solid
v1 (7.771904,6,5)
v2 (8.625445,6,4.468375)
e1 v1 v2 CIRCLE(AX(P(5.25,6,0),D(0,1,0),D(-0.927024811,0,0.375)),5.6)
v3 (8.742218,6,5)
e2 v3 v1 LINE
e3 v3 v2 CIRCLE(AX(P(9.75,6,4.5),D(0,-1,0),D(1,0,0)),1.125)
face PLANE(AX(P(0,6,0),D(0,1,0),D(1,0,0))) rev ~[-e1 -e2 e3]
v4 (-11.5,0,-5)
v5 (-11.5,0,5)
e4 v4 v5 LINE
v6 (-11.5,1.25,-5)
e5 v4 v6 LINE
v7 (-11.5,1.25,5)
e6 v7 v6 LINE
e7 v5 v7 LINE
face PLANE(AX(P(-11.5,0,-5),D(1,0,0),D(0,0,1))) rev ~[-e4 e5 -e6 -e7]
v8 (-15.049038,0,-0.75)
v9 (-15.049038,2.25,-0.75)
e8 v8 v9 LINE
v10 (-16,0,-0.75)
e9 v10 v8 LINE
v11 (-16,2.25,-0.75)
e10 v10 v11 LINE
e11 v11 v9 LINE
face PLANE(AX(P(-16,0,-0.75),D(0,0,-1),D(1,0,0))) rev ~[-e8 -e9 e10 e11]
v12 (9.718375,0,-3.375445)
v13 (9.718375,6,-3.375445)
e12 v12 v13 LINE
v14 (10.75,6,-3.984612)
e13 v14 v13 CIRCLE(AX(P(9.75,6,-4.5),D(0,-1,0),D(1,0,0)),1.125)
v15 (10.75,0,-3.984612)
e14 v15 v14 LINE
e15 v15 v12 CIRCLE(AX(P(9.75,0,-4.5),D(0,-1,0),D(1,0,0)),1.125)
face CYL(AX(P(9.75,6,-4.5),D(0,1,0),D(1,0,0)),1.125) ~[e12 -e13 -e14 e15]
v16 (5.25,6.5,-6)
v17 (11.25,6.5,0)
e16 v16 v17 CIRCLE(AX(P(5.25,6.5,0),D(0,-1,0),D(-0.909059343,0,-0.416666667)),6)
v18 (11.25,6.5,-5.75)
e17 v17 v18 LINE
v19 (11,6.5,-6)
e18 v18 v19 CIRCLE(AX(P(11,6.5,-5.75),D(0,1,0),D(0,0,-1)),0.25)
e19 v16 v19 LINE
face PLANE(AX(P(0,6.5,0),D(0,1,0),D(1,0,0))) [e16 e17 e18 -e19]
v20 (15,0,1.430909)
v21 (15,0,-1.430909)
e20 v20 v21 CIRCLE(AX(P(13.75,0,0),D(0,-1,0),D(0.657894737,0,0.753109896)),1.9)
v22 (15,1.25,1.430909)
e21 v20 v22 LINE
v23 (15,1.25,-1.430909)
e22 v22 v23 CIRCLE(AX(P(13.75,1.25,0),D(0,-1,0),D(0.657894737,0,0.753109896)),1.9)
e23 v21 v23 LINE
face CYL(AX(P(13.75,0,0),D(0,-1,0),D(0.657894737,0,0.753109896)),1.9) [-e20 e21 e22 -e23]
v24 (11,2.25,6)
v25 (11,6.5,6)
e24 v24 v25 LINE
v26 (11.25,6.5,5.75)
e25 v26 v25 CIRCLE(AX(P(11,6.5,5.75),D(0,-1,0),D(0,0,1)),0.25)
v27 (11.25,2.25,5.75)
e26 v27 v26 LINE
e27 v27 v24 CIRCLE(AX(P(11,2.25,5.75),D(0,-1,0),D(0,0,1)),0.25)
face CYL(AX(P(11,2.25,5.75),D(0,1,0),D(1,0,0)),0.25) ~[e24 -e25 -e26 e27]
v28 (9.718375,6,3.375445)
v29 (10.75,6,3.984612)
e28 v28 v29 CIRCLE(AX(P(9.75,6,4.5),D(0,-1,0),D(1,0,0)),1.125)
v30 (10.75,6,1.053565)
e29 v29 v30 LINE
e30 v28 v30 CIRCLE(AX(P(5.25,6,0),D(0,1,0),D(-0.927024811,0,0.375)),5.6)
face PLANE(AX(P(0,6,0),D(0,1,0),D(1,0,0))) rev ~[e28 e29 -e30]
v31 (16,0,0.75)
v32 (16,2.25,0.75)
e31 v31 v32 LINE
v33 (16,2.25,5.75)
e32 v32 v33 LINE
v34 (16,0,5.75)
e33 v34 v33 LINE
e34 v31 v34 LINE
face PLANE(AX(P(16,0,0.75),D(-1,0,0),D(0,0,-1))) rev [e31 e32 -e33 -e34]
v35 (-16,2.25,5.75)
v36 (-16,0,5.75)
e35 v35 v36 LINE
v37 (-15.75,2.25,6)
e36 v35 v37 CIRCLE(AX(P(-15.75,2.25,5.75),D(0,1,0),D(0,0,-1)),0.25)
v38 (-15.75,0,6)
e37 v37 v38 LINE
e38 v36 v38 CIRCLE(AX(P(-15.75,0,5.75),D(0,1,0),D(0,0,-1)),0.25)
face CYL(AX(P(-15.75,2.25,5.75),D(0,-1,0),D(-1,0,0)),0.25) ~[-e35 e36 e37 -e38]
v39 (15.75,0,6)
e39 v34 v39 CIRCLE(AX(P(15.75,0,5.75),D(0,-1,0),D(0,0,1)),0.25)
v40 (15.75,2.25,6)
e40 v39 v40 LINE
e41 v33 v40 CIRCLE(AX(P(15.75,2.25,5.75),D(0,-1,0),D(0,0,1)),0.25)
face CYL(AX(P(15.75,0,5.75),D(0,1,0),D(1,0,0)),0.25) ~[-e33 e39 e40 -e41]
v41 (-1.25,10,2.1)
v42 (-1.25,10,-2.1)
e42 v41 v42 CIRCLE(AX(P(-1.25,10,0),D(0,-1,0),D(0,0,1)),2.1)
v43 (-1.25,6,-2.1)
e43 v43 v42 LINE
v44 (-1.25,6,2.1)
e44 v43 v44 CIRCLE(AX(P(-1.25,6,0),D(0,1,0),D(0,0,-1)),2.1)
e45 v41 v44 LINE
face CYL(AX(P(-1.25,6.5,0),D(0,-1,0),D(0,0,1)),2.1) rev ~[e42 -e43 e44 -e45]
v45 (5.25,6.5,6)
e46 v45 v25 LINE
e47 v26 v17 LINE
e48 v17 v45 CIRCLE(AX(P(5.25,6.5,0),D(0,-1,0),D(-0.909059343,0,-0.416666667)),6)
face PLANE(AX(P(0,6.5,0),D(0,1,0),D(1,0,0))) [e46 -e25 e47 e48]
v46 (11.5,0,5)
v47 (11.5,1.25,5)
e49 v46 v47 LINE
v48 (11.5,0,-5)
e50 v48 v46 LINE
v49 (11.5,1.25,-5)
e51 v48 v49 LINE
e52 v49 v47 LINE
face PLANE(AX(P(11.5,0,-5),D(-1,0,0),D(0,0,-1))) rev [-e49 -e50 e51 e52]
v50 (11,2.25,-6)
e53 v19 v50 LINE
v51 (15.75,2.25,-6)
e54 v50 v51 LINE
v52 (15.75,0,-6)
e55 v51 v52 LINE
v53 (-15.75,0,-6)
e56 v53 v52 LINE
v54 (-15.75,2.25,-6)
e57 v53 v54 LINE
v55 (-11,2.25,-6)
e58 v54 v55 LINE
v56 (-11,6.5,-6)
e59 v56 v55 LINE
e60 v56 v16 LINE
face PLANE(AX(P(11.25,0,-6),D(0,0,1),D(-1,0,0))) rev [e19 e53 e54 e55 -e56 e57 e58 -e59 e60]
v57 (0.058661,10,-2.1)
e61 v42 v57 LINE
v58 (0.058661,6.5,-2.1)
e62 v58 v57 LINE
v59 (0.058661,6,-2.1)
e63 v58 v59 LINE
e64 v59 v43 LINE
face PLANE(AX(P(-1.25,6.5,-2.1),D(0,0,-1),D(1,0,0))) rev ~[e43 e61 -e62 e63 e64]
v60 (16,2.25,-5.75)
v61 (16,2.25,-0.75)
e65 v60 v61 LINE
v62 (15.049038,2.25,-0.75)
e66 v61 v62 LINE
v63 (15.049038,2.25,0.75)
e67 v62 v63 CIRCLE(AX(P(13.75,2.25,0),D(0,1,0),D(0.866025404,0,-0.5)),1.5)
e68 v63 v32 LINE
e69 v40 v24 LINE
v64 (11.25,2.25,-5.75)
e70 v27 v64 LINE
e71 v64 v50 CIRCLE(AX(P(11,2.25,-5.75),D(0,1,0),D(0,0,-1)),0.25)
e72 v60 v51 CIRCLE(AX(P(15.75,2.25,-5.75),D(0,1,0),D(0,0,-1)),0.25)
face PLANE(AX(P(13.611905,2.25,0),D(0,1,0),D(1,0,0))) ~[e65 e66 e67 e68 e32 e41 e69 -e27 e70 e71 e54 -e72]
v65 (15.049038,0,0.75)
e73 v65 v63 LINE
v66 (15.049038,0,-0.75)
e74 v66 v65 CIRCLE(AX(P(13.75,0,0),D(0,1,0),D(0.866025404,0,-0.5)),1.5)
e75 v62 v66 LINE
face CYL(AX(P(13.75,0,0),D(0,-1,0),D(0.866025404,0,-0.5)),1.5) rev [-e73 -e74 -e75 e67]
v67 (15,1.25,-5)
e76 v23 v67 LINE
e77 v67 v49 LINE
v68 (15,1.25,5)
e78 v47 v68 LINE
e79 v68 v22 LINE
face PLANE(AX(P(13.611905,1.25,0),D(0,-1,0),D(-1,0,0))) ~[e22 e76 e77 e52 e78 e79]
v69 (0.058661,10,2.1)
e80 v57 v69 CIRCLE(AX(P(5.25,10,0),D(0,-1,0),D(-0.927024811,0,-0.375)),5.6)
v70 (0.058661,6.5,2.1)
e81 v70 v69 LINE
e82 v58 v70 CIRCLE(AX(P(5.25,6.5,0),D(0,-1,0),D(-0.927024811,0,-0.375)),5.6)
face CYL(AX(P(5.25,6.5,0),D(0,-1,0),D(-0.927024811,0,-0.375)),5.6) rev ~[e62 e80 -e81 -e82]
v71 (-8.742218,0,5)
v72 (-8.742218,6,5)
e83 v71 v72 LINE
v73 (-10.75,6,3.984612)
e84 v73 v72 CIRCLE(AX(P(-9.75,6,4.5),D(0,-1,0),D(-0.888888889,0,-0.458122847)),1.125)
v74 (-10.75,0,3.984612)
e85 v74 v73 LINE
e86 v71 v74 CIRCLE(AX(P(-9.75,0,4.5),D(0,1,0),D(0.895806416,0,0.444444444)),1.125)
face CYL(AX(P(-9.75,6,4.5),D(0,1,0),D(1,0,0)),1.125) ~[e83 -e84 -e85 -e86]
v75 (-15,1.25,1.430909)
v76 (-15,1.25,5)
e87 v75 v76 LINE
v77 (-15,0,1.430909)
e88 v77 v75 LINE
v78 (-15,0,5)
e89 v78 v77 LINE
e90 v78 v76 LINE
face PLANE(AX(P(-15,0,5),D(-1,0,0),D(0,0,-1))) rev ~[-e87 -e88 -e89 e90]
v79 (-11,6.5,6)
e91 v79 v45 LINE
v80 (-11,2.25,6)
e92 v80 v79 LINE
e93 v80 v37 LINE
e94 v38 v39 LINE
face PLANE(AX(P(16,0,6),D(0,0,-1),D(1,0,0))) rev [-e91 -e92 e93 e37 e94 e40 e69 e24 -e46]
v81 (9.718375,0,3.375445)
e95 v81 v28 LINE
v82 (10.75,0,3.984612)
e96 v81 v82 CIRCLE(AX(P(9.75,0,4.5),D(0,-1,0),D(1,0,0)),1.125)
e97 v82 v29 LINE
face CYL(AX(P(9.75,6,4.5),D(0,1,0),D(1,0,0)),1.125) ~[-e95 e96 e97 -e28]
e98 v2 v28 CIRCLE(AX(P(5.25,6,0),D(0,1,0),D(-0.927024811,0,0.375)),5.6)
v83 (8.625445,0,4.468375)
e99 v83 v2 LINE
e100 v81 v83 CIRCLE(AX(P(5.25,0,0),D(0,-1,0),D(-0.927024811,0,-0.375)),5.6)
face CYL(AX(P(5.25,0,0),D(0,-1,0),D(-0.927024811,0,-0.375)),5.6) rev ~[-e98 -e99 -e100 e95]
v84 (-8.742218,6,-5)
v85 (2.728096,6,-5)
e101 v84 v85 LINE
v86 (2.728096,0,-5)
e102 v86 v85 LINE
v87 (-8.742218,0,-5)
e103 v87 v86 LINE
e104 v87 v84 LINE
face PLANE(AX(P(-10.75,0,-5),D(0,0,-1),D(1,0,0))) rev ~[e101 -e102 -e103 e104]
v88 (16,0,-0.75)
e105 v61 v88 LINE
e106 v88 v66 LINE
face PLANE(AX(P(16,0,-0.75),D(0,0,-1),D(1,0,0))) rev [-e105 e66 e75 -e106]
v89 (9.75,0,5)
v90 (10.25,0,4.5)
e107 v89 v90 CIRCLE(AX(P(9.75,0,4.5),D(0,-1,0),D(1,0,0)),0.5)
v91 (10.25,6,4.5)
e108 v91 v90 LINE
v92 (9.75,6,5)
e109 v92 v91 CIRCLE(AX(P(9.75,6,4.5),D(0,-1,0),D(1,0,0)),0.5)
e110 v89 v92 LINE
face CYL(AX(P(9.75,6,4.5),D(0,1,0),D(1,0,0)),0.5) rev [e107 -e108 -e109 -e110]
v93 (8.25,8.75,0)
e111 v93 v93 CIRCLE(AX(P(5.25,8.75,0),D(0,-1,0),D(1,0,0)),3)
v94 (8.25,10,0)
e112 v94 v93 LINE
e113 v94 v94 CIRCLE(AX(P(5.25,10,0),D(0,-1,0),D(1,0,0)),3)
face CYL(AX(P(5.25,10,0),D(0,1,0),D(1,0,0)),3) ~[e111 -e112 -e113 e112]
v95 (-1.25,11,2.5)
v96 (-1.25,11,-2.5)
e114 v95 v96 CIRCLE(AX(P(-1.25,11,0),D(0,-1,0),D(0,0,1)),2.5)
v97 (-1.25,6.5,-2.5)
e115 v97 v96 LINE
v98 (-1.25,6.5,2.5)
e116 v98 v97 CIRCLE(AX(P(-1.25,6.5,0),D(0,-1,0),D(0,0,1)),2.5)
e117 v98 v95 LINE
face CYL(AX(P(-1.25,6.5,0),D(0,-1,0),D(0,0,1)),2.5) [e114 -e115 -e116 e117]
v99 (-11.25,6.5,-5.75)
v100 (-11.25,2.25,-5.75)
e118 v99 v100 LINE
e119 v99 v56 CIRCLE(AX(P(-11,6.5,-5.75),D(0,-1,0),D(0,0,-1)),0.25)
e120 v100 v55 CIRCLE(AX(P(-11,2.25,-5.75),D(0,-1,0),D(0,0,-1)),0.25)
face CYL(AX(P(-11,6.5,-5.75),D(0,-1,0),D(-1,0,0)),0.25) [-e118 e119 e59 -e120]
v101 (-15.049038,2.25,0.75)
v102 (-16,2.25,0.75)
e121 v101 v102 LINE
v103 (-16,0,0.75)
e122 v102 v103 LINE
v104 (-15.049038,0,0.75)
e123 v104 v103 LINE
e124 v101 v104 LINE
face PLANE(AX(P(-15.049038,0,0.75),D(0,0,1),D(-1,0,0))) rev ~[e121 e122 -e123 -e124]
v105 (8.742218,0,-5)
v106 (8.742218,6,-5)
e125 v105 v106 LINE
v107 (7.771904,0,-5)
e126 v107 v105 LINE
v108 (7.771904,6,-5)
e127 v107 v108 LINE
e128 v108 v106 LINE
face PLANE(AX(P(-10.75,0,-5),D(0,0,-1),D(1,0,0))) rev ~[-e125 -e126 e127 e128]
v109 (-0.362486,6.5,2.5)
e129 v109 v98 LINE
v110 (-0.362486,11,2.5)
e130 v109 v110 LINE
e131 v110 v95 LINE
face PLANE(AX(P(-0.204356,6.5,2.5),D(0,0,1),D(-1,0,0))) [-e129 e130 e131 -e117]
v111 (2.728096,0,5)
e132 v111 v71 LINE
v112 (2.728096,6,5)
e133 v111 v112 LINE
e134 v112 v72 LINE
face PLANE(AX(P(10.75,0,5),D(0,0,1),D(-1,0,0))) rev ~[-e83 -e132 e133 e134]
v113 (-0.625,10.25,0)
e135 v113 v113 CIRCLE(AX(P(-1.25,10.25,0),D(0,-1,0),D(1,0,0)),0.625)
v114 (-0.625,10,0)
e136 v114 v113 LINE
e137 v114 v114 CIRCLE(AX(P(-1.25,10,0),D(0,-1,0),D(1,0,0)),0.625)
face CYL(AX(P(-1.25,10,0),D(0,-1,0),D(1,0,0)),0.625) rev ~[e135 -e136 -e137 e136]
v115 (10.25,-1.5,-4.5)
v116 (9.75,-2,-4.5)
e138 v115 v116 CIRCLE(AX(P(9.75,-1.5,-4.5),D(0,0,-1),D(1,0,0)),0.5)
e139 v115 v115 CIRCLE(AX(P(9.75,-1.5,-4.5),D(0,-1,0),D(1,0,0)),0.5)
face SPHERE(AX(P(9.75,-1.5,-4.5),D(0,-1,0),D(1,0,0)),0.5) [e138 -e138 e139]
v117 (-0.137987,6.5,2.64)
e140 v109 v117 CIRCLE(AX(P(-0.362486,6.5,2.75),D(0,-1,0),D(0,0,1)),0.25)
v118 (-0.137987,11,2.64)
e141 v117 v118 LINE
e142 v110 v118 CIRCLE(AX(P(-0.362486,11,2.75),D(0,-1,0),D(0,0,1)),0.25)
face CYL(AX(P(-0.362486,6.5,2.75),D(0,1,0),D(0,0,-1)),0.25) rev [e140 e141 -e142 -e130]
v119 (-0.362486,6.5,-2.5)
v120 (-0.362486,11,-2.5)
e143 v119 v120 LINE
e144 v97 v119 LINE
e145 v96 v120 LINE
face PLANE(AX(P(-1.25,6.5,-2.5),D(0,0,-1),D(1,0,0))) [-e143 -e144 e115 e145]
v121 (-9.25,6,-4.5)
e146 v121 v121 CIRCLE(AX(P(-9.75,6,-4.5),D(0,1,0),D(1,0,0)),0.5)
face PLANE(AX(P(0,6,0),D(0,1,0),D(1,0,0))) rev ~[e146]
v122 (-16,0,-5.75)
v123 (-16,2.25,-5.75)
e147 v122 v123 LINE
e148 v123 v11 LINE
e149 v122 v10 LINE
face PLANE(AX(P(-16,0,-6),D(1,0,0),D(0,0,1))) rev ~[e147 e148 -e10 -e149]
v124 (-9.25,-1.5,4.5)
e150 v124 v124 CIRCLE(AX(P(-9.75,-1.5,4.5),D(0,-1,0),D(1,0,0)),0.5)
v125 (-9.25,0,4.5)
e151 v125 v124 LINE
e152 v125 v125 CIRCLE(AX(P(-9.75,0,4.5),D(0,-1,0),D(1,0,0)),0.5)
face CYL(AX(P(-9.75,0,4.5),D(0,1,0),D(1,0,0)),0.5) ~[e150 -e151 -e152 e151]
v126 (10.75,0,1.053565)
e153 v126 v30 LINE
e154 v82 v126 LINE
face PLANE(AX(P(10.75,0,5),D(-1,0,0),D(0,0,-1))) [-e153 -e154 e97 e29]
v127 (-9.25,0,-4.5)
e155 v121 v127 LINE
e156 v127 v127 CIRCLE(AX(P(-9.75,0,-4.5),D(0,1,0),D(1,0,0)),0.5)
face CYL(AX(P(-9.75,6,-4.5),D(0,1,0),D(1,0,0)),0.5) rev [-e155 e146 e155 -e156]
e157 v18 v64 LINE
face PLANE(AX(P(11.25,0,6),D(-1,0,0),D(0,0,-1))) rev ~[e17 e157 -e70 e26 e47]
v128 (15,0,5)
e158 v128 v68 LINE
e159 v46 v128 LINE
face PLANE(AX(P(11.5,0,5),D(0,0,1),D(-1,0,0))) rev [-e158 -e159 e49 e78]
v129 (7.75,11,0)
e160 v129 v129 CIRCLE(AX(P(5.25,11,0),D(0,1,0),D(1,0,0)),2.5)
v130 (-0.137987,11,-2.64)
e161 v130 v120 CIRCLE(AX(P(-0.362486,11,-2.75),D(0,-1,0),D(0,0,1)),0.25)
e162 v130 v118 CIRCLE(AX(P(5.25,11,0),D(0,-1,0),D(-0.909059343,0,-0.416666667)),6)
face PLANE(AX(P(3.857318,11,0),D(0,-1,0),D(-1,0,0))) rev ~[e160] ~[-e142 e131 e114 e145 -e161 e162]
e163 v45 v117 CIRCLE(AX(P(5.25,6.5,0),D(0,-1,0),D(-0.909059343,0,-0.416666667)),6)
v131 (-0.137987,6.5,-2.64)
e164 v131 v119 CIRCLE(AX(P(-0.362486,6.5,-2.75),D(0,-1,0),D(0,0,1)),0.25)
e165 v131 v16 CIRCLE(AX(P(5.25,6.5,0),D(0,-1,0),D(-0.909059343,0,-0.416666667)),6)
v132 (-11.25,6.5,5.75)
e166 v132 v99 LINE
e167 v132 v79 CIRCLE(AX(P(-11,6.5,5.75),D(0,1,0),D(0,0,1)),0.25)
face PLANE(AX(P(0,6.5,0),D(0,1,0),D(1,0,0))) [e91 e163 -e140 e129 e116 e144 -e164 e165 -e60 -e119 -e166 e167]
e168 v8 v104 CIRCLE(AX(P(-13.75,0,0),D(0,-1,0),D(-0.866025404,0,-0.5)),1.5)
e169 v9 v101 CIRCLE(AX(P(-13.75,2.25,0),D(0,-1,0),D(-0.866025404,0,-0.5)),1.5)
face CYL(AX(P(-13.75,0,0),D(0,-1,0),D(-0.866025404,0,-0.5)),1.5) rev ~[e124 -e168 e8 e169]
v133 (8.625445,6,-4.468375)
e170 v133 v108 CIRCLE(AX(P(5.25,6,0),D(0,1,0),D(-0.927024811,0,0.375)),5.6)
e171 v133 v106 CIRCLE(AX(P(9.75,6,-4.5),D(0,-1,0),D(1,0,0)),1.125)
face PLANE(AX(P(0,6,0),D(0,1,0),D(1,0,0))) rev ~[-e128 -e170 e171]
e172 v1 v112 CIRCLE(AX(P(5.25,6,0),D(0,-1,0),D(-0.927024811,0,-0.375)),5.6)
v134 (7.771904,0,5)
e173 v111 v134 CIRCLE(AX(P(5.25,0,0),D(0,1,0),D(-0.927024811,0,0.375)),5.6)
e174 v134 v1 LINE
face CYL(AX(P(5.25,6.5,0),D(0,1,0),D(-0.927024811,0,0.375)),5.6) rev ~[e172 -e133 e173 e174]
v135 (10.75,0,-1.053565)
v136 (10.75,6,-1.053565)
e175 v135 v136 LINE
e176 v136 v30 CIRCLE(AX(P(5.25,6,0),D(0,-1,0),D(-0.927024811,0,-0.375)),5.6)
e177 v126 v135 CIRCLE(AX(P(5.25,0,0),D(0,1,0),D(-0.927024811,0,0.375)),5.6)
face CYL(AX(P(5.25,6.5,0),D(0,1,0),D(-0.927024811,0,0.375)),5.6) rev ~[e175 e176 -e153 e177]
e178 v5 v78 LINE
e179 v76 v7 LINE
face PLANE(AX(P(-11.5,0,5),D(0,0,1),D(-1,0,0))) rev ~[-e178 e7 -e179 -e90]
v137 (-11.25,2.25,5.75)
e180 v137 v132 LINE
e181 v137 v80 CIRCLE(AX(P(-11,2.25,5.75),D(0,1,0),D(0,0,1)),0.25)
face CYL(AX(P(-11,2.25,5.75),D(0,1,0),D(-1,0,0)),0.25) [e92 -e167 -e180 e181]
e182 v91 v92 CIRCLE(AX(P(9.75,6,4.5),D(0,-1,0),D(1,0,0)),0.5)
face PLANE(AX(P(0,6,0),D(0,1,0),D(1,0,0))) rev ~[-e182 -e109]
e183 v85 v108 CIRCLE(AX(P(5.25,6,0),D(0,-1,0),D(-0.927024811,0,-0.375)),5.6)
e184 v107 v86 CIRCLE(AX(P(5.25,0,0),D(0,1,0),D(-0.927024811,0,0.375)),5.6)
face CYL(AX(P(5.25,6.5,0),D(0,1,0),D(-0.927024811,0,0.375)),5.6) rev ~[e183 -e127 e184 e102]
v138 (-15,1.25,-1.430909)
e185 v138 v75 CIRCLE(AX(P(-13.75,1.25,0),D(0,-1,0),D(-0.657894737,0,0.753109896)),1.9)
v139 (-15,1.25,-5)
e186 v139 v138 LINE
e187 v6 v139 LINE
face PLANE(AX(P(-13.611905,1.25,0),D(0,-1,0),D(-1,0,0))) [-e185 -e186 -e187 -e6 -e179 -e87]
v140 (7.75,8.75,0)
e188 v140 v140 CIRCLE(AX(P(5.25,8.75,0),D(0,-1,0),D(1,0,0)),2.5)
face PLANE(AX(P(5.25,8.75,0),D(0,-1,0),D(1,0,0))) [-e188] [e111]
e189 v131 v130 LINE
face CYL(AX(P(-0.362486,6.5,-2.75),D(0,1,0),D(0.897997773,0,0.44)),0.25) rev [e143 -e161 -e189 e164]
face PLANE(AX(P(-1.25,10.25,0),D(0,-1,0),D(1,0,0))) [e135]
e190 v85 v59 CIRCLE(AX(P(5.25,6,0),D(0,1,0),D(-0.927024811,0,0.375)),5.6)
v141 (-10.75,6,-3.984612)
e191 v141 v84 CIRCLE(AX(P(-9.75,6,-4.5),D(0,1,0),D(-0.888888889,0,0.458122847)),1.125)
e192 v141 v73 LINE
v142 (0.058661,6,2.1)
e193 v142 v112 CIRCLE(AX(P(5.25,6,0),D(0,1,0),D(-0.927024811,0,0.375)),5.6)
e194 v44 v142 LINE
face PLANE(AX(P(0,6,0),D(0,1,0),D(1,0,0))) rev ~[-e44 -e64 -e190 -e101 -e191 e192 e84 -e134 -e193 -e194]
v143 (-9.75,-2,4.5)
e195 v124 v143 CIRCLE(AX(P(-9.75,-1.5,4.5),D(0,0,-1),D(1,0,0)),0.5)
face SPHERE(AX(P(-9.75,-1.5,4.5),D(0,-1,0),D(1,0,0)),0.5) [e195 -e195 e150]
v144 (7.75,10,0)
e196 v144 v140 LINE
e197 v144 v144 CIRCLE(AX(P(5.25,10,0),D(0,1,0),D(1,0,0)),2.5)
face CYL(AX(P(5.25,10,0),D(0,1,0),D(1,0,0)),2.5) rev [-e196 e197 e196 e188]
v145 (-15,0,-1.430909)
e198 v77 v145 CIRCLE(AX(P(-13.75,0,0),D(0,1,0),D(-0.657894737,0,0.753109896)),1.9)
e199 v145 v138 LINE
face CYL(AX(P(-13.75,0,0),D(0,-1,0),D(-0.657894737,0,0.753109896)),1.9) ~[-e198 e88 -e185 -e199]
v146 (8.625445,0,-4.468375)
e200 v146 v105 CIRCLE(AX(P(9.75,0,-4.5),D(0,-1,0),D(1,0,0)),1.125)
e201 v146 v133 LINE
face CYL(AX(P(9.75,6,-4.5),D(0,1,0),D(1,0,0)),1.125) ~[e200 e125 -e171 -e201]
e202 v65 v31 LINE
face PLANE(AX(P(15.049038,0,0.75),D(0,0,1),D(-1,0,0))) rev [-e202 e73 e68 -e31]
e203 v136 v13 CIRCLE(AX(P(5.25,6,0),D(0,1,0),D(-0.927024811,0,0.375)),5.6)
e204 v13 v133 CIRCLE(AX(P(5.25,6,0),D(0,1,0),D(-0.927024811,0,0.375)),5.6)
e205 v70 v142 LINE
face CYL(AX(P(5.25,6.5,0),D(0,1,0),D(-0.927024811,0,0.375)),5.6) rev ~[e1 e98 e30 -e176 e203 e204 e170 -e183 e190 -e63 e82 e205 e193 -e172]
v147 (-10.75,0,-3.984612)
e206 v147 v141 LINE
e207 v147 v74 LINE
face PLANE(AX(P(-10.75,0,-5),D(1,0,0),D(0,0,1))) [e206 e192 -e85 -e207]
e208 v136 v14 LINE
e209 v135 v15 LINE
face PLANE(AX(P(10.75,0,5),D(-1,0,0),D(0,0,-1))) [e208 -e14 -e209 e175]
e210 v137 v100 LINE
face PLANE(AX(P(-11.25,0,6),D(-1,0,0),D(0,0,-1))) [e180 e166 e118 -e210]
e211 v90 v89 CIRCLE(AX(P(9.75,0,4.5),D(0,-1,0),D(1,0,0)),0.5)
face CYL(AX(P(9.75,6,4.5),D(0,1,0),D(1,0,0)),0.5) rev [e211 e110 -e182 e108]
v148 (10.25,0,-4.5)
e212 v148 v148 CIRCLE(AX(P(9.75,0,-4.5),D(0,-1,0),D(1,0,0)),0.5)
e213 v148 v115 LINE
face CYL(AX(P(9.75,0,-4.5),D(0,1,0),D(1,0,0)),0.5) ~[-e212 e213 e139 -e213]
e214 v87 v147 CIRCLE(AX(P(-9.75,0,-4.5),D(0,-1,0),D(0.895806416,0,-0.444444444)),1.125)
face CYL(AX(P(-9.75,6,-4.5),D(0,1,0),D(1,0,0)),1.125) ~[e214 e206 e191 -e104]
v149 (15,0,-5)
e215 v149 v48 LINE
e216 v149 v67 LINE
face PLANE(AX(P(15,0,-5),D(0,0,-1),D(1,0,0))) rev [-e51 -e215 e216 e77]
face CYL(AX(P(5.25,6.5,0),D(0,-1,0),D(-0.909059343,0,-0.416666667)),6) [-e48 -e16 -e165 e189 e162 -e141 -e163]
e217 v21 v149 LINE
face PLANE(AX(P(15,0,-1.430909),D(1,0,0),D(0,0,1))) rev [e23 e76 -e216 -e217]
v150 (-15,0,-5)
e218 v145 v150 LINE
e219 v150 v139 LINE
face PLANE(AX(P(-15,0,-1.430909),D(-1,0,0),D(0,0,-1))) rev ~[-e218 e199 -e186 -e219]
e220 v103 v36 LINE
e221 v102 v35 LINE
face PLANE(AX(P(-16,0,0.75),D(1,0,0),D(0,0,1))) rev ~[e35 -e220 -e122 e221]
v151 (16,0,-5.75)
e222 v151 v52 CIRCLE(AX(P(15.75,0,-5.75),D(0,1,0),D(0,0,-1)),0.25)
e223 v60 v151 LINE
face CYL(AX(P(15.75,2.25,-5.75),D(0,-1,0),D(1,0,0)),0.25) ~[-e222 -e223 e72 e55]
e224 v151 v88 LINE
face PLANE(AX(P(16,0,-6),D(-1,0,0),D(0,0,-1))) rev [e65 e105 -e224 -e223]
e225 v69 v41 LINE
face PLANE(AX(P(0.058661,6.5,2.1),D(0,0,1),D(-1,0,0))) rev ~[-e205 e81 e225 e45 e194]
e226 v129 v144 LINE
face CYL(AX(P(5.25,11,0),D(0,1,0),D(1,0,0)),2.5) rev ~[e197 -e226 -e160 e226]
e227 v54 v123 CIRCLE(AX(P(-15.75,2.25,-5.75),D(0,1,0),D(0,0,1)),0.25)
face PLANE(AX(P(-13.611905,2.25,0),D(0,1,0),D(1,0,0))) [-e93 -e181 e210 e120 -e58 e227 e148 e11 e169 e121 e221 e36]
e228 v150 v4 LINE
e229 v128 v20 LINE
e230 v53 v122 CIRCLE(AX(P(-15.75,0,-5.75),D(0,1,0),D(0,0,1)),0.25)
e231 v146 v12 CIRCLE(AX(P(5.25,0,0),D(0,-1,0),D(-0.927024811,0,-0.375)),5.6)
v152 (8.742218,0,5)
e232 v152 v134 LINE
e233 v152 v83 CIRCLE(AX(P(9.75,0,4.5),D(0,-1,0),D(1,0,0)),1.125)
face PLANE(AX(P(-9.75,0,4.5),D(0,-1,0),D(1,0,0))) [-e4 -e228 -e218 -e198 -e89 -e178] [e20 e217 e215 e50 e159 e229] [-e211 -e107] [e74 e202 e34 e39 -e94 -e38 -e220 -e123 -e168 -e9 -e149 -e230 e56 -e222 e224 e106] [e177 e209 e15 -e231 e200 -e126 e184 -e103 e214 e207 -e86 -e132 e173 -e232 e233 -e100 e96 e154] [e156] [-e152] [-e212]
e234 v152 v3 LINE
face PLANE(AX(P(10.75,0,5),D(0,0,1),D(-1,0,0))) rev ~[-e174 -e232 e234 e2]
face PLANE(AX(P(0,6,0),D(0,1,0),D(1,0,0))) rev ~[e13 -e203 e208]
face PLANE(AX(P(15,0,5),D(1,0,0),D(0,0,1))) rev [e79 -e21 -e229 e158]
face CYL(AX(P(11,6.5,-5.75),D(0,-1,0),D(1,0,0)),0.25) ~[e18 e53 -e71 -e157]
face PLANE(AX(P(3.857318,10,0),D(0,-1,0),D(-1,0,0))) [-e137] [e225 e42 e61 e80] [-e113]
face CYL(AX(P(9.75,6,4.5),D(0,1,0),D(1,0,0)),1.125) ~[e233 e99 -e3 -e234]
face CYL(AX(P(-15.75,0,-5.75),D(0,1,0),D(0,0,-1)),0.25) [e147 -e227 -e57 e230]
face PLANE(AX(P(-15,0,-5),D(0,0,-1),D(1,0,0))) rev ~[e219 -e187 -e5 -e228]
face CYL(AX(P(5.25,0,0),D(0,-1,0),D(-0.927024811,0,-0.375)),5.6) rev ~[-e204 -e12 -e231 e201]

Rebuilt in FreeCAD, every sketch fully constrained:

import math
import FreeCAD as App
import Part
import Sketcher
from FreeCAD import Vector
Q = App.Units.Quantity


def edges_at(feature, points):
    """Names of the edges that pass closest to the given points."""
    edges = feature.Shape.Edges
    near = lambda p: min(range(len(edges)), key=lambda i: edges[i].distToShape(Part.Vertex(*p))[0])
    return sorted({f"Edge{near(p) + 1}" for p in points})


def add_polygon(sketch, points):
    """Adds a closed chain of lines whose ends are joined by coincident constraints."""
    first, n = sketch.GeometryCount, len(points)
    for a, b in zip(points, points[1:] + points[:1]):
        sketch.addGeometry(Part.LineSegment(App.Vector(*a, 0), App.Vector(*b, 0)), False)
    for i in range(n):
        sketch.addConstraint(Sketcher.Constraint("Coincident", first + i, 2, first + (i + 1) % n, 1))

doc = App.newDocument("Part")
body = doc.addObject("PartDesign::Body", "Body")

# Sketch on XZ plane
sketch1 = body.newObject("Sketcher::SketchObject", "Sketch")
sketch1.AttachmentSupport = (doc.getObject("XZ_Plane"), [""])
sketch1.MapMode = "FlatFace"
add_polygon(sketch1, [(-11, -6), (-11, 6), (11, 6), (11, -6)])  # lines 0-3
add_polygon(sketch1, [(-11, -5), (11, -5), (11, 5), (-11, 5)])  # lines 4-7
sketch1.addConstraint(Sketcher.Constraint("Vertical", 0))
sketch1.addConstraint(Sketcher.Constraint("Horizontal", 1))
sketch1.addConstraint(Sketcher.Constraint("Vertical", 2))
sketch1.addConstraint(Sketcher.Constraint("Horizontal", 3))
sketch1.addConstraint(Sketcher.Constraint("Horizontal", 4))
sketch1.addConstraint(Sketcher.Constraint("Vertical", 5))
sketch1.addConstraint(Sketcher.Constraint("Horizontal", 6))
sketch1.addConstraint(Sketcher.Constraint("Vertical", 7))
sketch1.addConstraint(Sketcher.Constraint("Symmetric", 0, 2, 2, 2, -1, 1))
sketch1.addConstraint(Sketcher.Constraint("Symmetric", 4, 2, 6, 2, -1, 1))
sketch1.addConstraint(Sketcher.Constraint("DistanceY", 0, 1, 0, 2, Q("12 mm")))
sketch1.addConstraint(Sketcher.Constraint("DistanceY", 5, 1, 5, 2, Q("10 mm")))
sketch1.addConstraint(Sketcher.Constraint("DistanceX", 1, 1, 1, 2, Q("22.5 mm")))
sketch1.addConstraint(Sketcher.Constraint("DistanceX", 4, 1, 4, 2, Q("21.5 mm")))
pad1 = body.newObject("PartDesign::Pad", "Pad")
pad1.Profile = sketch1
pad1.Length = 6.5
pad1.Reversed = True

# Sketch on XZ plane
sketch2 = body.newObject("Sketcher::SketchObject", "Sketch001")
sketch2.AttachmentSupport = (doc.getObject("XZ_Plane"), [""])
sketch2.MapMode = "FlatFace"
sketch2.AttachmentOffset = App.Placement(Vector(0, 0, -6.5), App.Rotation())
add_polygon(sketch2, [(-11, -6), (-11, 6), (11, 6), (11, -6)])  # lines 0-3
sketch2.addConstraint(Sketcher.Constraint("Vertical", 0))
sketch2.addConstraint(Sketcher.Constraint("Horizontal", 1))
sketch2.addConstraint(Sketcher.Constraint("Vertical", 2))
sketch2.addConstraint(Sketcher.Constraint("Horizontal", 3))
sketch2.addConstraint(Sketcher.Constraint("Symmetric", 0, 2, 2, 2, -1, 1))
sketch2.addConstraint(Sketcher.Constraint("DistanceY", 0, 1, 0, 2, Q("12 mm")))
sketch2.addConstraint(Sketcher.Constraint("DistanceX", 1, 1, 1, 2, Q("22.5 mm")))
pad2 = body.newObject("PartDesign::Pad", "Pad001")
pad2.Profile = sketch2
pad2.Length = 0.5

# Sketch on XZ plane
sketch3 = body.newObject("Sketcher::SketchObject", "Sketch002")
sketch3.AttachmentSupport = (doc.getObject("XZ_Plane"), [""])
sketch3.MapMode = "FlatFace"
sketch3.AttachmentOffset = App.Placement(Vector(0, 0, -6.5), App.Rotation())
sketch3.addGeometry(Part.LineSegment(Vector(-0.2, -2.5, 0), Vector(-1.2, -2.5, 0)), False)
sketch3.addGeometry(Part.ArcOfCircle(Part.Circle(Vector(-1.2, 0, 0), Vector(0, 0, 1), 2.5), math.radians(90), math.radians(270)), False)
sketch3.addGeometry(Part.LineSegment(Vector(-1.2, 2.5, 0), Vector(-0.2, 2.5, 0)), False)
sketch3.addGeometry(Part.ArcOfCircle(Part.Circle(Vector(5.2, 0, 0), Vector(0, 0, 1), 6), math.radians(-155), math.radians(155)), False)
sketch3.addGeometry(Part.LineSegment(Vector(-1.2, -2.1, 0), Vector(0.1, -2.1, 0)), False)
sketch3.addGeometry(Part.ArcOfCircle(Part.Circle(Vector(5.2, 0, 0), Vector(0, 0, 1), 5.6), math.radians(-158), math.radians(158)), False)
sketch3.addGeometry(Part.LineSegment(Vector(0.1, 2.1, 0), Vector(-1.2, 2.1, 0)), False)
sketch3.addGeometry(Part.ArcOfCircle(Part.Circle(Vector(-1.2, 0, 0), Vector(0, 0, 1), 2.1), math.radians(90), math.radians(270)), False)
sketch3.addConstraint(Sketcher.Constraint("Tangent", 0, 2, 1, 2))
sketch3.addConstraint(Sketcher.Constraint("Tangent", 1, 1, 2, 1))
sketch3.addConstraint(Sketcher.Constraint("Coincident", 2, 2, 3, 2))
sketch3.addConstraint(Sketcher.Constraint("Coincident", 3, 1, 0, 1))
sketch3.addConstraint(Sketcher.Constraint("Coincident", 4, 2, 5, 1))
sketch3.addConstraint(Sketcher.Constraint("Coincident", 5, 2, 6, 1))
sketch3.addConstraint(Sketcher.Constraint("Tangent", 6, 2, 7, 1))
sketch3.addConstraint(Sketcher.Constraint("Tangent", 7, 2, 4, 1))
sketch3.addConstraint(Sketcher.Constraint("Horizontal", 0))
sketch3.addConstraint(Sketcher.Constraint("Horizontal", 2))
sketch3.addConstraint(Sketcher.Constraint("Horizontal", 4))
sketch3.addConstraint(Sketcher.Constraint("Horizontal", 6))
sketch3.addConstraint(Sketcher.Constraint("Coincident", 5, 3, 3, 3))
sketch3.addConstraint(Sketcher.Constraint("Coincident", 7, 3, 1, 3))
sketch3.addConstraint(Sketcher.Constraint("Symmetric", 2, 2, 3, 1, -1))
sketch3.addConstraint(Sketcher.Constraint("Radius", 3, Q("6 mm")))
sketch3.addConstraint(Sketcher.Constraint("Radius", 1, Q("2.5 mm")))
sketch3.addConstraint(Sketcher.Constraint("Radius", 5, Q("5.6 mm")))
sketch3.addConstraint(Sketcher.Constraint("Radius", 7, Q("2.1 mm")))
sketch3.addConstraint(Sketcher.Constraint("DistanceX", 1, 3, 3, 3, Q("6.5 mm")))
sketch3.addConstraint(Sketcher.Constraint("DistanceX", 1, 3, -1, 1, Q("1.25 mm")))
pad3 = body.newObject("PartDesign::Pad", "Pad002")
pad3.Profile = sketch3
pad3.Length = 4.5
pad3.Reversed = True

# Sketch on XZ plane
sketch4 = body.newObject("Sketcher::SketchObject", "Sketch003")
sketch4.AttachmentSupport = (doc.getObject("XZ_Plane"), [""])
sketch4.MapMode = "FlatFace"
sketch4.AttachmentOffset = App.Placement(Vector(0, 0, -11), App.Rotation())
sketch4.addGeometry(Part.ArcOfCircle(Part.Circle(Vector(-1.2, 0, 0), Vector(0, 0, 1), 2.1), math.radians(90), math.radians(270)), False)
sketch4.addGeometry(Part.LineSegment(Vector(-1.2, 2.1, 0), Vector(0.1, 2.1, 0)), False)
sketch4.addGeometry(Part.ArcOfCircle(Part.Circle(Vector(5.2, 0, 0), Vector(0, 0, 1), 5.6), math.radians(-158), math.radians(158)), False)
sketch4.addGeometry(Part.LineSegment(Vector(0.1, -2.1, 0), Vector(-1.2, -2.1, 0)), False)
sketch4.addGeometry(Part.Circle(Vector(5.2, 0, 0), Vector(0, 0, 1), 2.5), False)
sketch4.addConstraint(Sketcher.Constraint("Tangent", 0, 1, 1, 1))
sketch4.addConstraint(Sketcher.Constraint("Coincident", 1, 2, 2, 2))
sketch4.addConstraint(Sketcher.Constraint("Coincident", 2, 1, 3, 1))
sketch4.addConstraint(Sketcher.Constraint("Tangent", 3, 2, 0, 2))
sketch4.addConstraint(Sketcher.Constraint("Horizontal", 1))
sketch4.addConstraint(Sketcher.Constraint("Horizontal", 3))
sketch4.addConstraint(Sketcher.Constraint("Coincident", 4, 3, 2, 3))
sketch4.addConstraint(Sketcher.Constraint("Symmetric", 1, 2, 2, 1, -1))
sketch4.addConstraint(Sketcher.Constraint("Diameter", 4, Q("5 mm")))
sketch4.addConstraint(Sketcher.Constraint("Radius", 0, Q("2.1 mm")))
sketch4.addConstraint(Sketcher.Constraint("Radius", 2, Q("5.6 mm")))
sketch4.addConstraint(Sketcher.Constraint("DistanceX", 0, 3, 2, 3, Q("6.5 mm")))
sketch4.addConstraint(Sketcher.Constraint("DistanceX", 0, 3, -1, 1, Q("1.25 mm")))
pad4 = body.newObject("PartDesign::Pad", "Pad003")
pad4.Profile = sketch4
pad4.Length = 1

# Sketch on XZ plane
sketch5 = body.newObject("Sketcher::SketchObject", "Sketch004")
sketch5.AttachmentSupport = (doc.getObject("XZ_Plane"), [""])
sketch5.MapMode = "FlatFace"
sketch5.AttachmentOffset = App.Placement(Vector(0, 0, -6.5), App.Rotation())
sketch5.addGeometry(Part.LineSegment(Vector(-1.2, 2.1, 0), Vector(0.1, 2.1, 0)), False)
sketch5.addGeometry(Part.ArcOfCircle(Part.Circle(Vector(5.2, 0, 0), Vector(0, 0, 1), 5.6), math.radians(-158), math.radians(158)), False)
sketch5.addGeometry(Part.LineSegment(Vector(0.1, -2.1, 0), Vector(-1.2, -2.1, 0)), False)
sketch5.addGeometry(Part.ArcOfCircle(Part.Circle(Vector(-1.2, 0, 0), Vector(0, 0, 1), 2.1), math.radians(90), math.radians(270)), False)
sketch5.addConstraint(Sketcher.Constraint("Coincident", 0, 2, 1, 2))
sketch5.addConstraint(Sketcher.Constraint("Coincident", 1, 1, 2, 1))
sketch5.addConstraint(Sketcher.Constraint("Tangent", 2, 2, 3, 2))
sketch5.addConstraint(Sketcher.Constraint("Tangent", 3, 1, 0, 1))
sketch5.addConstraint(Sketcher.Constraint("Horizontal", 0))
sketch5.addConstraint(Sketcher.Constraint("Horizontal", 2))
sketch5.addConstraint(Sketcher.Constraint("Symmetric", 0, 2, 1, 1, -1))
sketch5.addConstraint(Sketcher.Constraint("Radius", 1, Q("5.6 mm")))
sketch5.addConstraint(Sketcher.Constraint("Radius", 3, Q("2.1 mm")))
sketch5.addConstraint(Sketcher.Constraint("DistanceX", 3, 3, 1, 3, Q("6.5 mm")))
sketch5.addConstraint(Sketcher.Constraint("DistanceX", -1, 1, 1, 3, Q("5.25 mm")))
pocket1 = body.newObject("PartDesign::Pocket", "Pocket")
pocket1.Profile = sketch5
pocket1.Type = "ThroughAll"
pocket1.Reversed = True

# Sketch on XZ plane
sketch6 = body.newObject("Sketcher::SketchObject", "Sketch005")
sketch6.AttachmentSupport = (doc.getObject("XZ_Plane"), [""])
sketch6.MapMode = "FlatFace"
sketch6.AttachmentOffset = App.Placement(Vector(0, 0, -10), App.Rotation())
sketch6.addGeometry(Part.Circle(Vector(5.2, 0, 0), Vector(0, 0, 1), 3), False)
sketch6.addGeometry(Part.Circle(Vector(5.2, 0, 0), Vector(0, 0, 1), 2.5), False)
sketch6.addConstraint(Sketcher.Constraint("Coincident", 1, 3, 0, 3))
sketch6.addConstraint(Sketcher.Constraint("PointOnObject", 0, 3, -1))
sketch6.addConstraint(Sketcher.Constraint("Diameter", 0, Q("6 mm")))
sketch6.addConstraint(Sketcher.Constraint("Diameter", 1, Q("5 mm")))
sketch6.addConstraint(Sketcher.Constraint("DistanceX", -1, 1, 0, 3, Q("5.25 mm")))
pad5 = body.newObject("PartDesign::Pad", "Pad004")
pad5.Profile = sketch6
pad5.Length = 1.25

# Sketch on XZ plane
sketch7 = body.newObject("Sketcher::SketchObject", "Sketch006")
sketch7.AttachmentSupport = (doc.getObject("XZ_Plane"), [""])
sketch7.MapMode = "FlatFace"
sketch7.addGeometry(Part.LineSegment(Vector(-11.2, 6, 0), Vector(-11.2, -6, 0)), False)
sketch7.addGeometry(Part.LineSegment(Vector(-11.2, -6, 0), Vector(-16, -6, 0)), False)
sketch7.addGeometry(Part.LineSegment(Vector(-16, -6, 0), Vector(-16, -0.8, 0)), False)
sketch7.addGeometry(Part.LineSegment(Vector(-16, -0.8, 0), Vector(-15, -0.8, 0)), False)
sketch7.addGeometry(Part.ArcOfCircle(Part.Circle(Vector(-13.8, 0, 0), Vector(0, 0, 1), 1.5), math.radians(-150), math.radians(150)), False)
sketch7.addGeometry(Part.LineSegment(Vector(-15, 0.8, 0), Vector(-16, 0.8, 0)), False)
sketch7.addGeometry(Part.LineSegment(Vector(-16, 0.8, 0), Vector(-16, 6, 0)), False)
sketch7.addGeometry(Part.LineSegment(Vector(-16, 6, 0), Vector(-11.2, 6, 0)), False)
sketch7.addGeometry(Part.ArcOfCircle(Part.Circle(Vector(-13.8, 0, 0), Vector(0, 0, 1), 1.9), math.radians(-131), math.radians(131)), False)
sketch7.addGeometry(Part.LineSegment(Vector(-15, -1.4, 0), Vector(-15, -5, 0)), False)
sketch7.addGeometry(Part.LineSegment(Vector(-15, -5, 0), Vector(-11.5, -5, 0)), False)
sketch7.addGeometry(Part.LineSegment(Vector(-11.5, -5, 0), Vector(-11.5, 5, 0)), False)
sketch7.addGeometry(Part.LineSegment(Vector(-11.5, 5, 0), Vector(-15, 5, 0)), False)
sketch7.addGeometry(Part.LineSegment(Vector(-15, 5, 0), Vector(-15, 1.4, 0)), False)
sketch7.addConstraint(Sketcher.Constraint("Coincident", 0, 2, 1, 1))
sketch7.addConstraint(Sketcher.Constraint("Coincident", 1, 2, 2, 1))
sketch7.addConstraint(Sketcher.Constraint("Coincident", 2, 2, 3, 1))
sketch7.addConstraint(Sketcher.Constraint("Coincident", 3, 2, 4, 1))
sketch7.addConstraint(Sketcher.Constraint("Coincident", 4, 2, 5, 1))
sketch7.addConstraint(Sketcher.Constraint("Coincident", 5, 2, 6, 1))
sketch7.addConstraint(Sketcher.Constraint("Coincident", 6, 2, 7, 1))
sketch7.addConstraint(Sketcher.Constraint("Coincident", 7, 2, 0, 1))
sketch7.addConstraint(Sketcher.Constraint("Coincident", 8, 1, 9, 1))
sketch7.addConstraint(Sketcher.Constraint("Coincident", 9, 2, 10, 1))
sketch7.addConstraint(Sketcher.Constraint("Coincident", 10, 2, 11, 1))
sketch7.addConstraint(Sketcher.Constraint("Coincident", 11, 2, 12, 1))
sketch7.addConstraint(Sketcher.Constraint("Coincident", 12, 2, 13, 1))
sketch7.addConstraint(Sketcher.Constraint("Coincident", 13, 2, 8, 2))
sketch7.addConstraint(Sketcher.Constraint("Vertical", 0))
sketch7.addConstraint(Sketcher.Constraint("Horizontal", 1))
sketch7.addConstraint(Sketcher.Constraint("Vertical", 2))
sketch7.addConstraint(Sketcher.Constraint("Horizontal", 3))
sketch7.addConstraint(Sketcher.Constraint("Horizontal", 5))
sketch7.addConstraint(Sketcher.Constraint("Vertical", 6))
sketch7.addConstraint(Sketcher.Constraint("Horizontal", 7))
sketch7.addConstraint(Sketcher.Constraint("Vertical", 9))
sketch7.addConstraint(Sketcher.Constraint("Horizontal", 10))
sketch7.addConstraint(Sketcher.Constraint("Vertical", 11))
sketch7.addConstraint(Sketcher.Constraint("Horizontal", 12))
sketch7.addConstraint(Sketcher.Constraint("Vertical", 13))
sketch7.addConstraint(Sketcher.Constraint("Coincident", 8, 3, 4, 3))
sketch7.addConstraint(Sketcher.Constraint("Symmetric", 3, 2, 4, 2, -1))
sketch7.addConstraint(Sketcher.Constraint("Symmetric", 1, 2, 6, 2, -1))
sketch7.addConstraint(Sketcher.Constraint("Symmetric", 9, 2, 12, 2, -1))
sketch7.addConstraint(Sketcher.Constraint("Radius", 4, Q("1.5 mm")))
sketch7.addConstraint(Sketcher.Constraint("Radius", 8, Q("1.9 mm")))
sketch7.addConstraint(Sketcher.Constraint("DistanceY", 0, 2, 0, 1, Q("12 mm")))
sketch7.addConstraint(Sketcher.Constraint("DistanceY", 11, 1, 11, 2, Q("10 mm")))
sketch7.addConstraint(Sketcher.Constraint("DistanceX", 10, 1, 10, 2, Q("3.5 mm")))
sketch7.addConstraint(Sketcher.Constraint("DistanceX", 1, 2, -1, 1, Q("16 mm")))
sketch7.addConstraint(Sketcher.Constraint("DistanceX", 8, 1, -1, 1, Q("15 mm")))
sketch7.addConstraint(Sketcher.Constraint("DistanceX", 1, 2, 1, 1, Q("4.75 mm")))
sketch7.addConstraint(Sketcher.Constraint("DistanceY", 2, 1, 2, 2, Q("5.25 mm")))
sketch7.addConstraint(Sketcher.Constraint("DistanceX", 4, 3, 0, 2, Q("2.5 mm")))
pad6 = body.newObject("PartDesign::Pad", "Pad005")
pad6.Profile = sketch7
pad6.Length = 2.25
pad6.Reversed = True

# Sketch on XZ plane
sketch8 = body.newObject("Sketcher::SketchObject", "Sketch007")
sketch8.AttachmentSupport = (doc.getObject("XZ_Plane"), [""])
sketch8.MapMode = "FlatFace"
sketch8.AttachmentOffset = App.Placement(Vector(0, 0, -2.25), App.Rotation())
sketch8.addGeometry(Part.LineSegment(Vector(-16, -0.8, 0), Vector(-15, -0.8, 0)), False)
sketch8.addGeometry(Part.ArcOfCircle(Part.Circle(Vector(-13.8, 0, 0), Vector(0, 0, 1), 1.5), math.radians(-150), math.radians(150)), False)
sketch8.addGeometry(Part.LineSegment(Vector(-15, 0.8, 0), Vector(-16, 0.8, 0)), False)
sketch8.addGeometry(Part.LineSegment(Vector(-16, 0.8, 0), Vector(-16, 6, 0)), False)
sketch8.addGeometry(Part.LineSegment(Vector(-16, 6, 0), Vector(-11.2, 6, 0)), False)
sketch8.addGeometry(Part.LineSegment(Vector(-11.2, 6, 0), Vector(-11.2, -6, 0)), False)
sketch8.addGeometry(Part.LineSegment(Vector(-11.2, -6, 0), Vector(-16, -6, 0)), False)
sketch8.addGeometry(Part.LineSegment(Vector(-16, -6, 0), Vector(-16, -0.8, 0)), False)
sketch8.addConstraint(Sketcher.Constraint("Coincident", 0, 2, 1, 1))
sketch8.addConstraint(Sketcher.Constraint("Coincident", 1, 2, 2, 1))
sketch8.addConstraint(Sketcher.Constraint("Coincident", 2, 2, 3, 1))
sketch8.addConstraint(Sketcher.Constraint("Coincident", 3, 2, 4, 1))
sketch8.addConstraint(Sketcher.Constraint("Coincident", 4, 2, 5, 1))
sketch8.addConstraint(Sketcher.Constraint("Coincident", 5, 2, 6, 1))
sketch8.addConstraint(Sketcher.Constraint("Coincident", 6, 2, 7, 1))
sketch8.addConstraint(Sketcher.Constraint("Coincident", 7, 2, 0, 1))
sketch8.addConstraint(Sketcher.Constraint("Horizontal", 0))
sketch8.addConstraint(Sketcher.Constraint("Horizontal", 2))
sketch8.addConstraint(Sketcher.Constraint("Vertical", 3))
sketch8.addConstraint(Sketcher.Constraint("Horizontal", 4))
sketch8.addConstraint(Sketcher.Constraint("Vertical", 5))
sketch8.addConstraint(Sketcher.Constraint("Horizontal", 6))
sketch8.addConstraint(Sketcher.Constraint("Vertical", 7))
sketch8.addConstraint(Sketcher.Constraint("Symmetric", 0, 2, 1, 2, -1))
sketch8.addConstraint(Sketcher.Constraint("Symmetric", 3, 2, 6, 2, -1))
sketch8.addConstraint(Sketcher.Constraint("Radius", 1, Q("1.5 mm")))
sketch8.addConstraint(Sketcher.Constraint("DistanceY", 5, 2, 5, 1, Q("12 mm")))
sketch8.addConstraint(Sketcher.Constraint("DistanceX", 2, 2, -1, 1, Q("16 mm")))
sketch8.addConstraint(Sketcher.Constraint("DistanceX", 4, 1, 4, 2, Q("4.75 mm")))
sketch8.addConstraint(Sketcher.Constraint("DistanceY", 3, 1, 3, 2, Q("5.25 mm")))
sketch8.addConstraint(Sketcher.Constraint("DistanceX", 1, 3, 4, 2, Q("2.5 mm")))
pad7 = body.newObject("PartDesign::Pad", "Pad006")
pad7.Profile = sketch8
pad7.Length = 1
doc.recompute()

mirrored = body.newObject("PartDesign::Mirrored", "Mirrored")
mirrored.Originals = [pad6, pad7]
mirrored.MirrorPlane = (doc.getObject("YZ_Plane"), [""])
body.Tip = mirrored

# Sketch on XZ plane
sketch9 = body.newObject("Sketcher::SketchObject", "Sketch008")
sketch9.AttachmentSupport = (doc.getObject("XZ_Plane"), [""])
sketch9.MapMode = "FlatFace"
sketch9.AttachmentOffset = App.Placement(Vector(0, 0, -10), App.Rotation())
sketch9.addGeometry(Part.Circle(Vector(-1.2, 0, 0), Vector(0, 0, 1), 0.6), False)
sketch9.addConstraint(Sketcher.Constraint("PointOnObject", 0, 3, -1))
sketch9.addConstraint(Sketcher.Constraint("Diameter", 0, Q("1.25 mm")))
sketch9.addConstraint(Sketcher.Constraint("DistanceX", 0, 3, -1, 1, Q("1.25 mm")))
pocket2 = body.newObject("PartDesign::Pocket", "Pocket001")
pocket2.Profile = sketch9
pocket2.Length = 0.25

# Sketch on XZ plane
sketch10 = body.newObject("Sketcher::SketchObject", "Sketch009")
sketch10.AttachmentSupport = (doc.getObject("XZ_Plane"), [""])
sketch10.MapMode = "FlatFace"
sketch10.AttachmentOffset = App.Placement(Vector(0, 0, -6), App.Rotation())
sketch10.addGeometry(Part.Circle(Vector(-9.8, 4.5, 0), Vector(0, 0, 1), 1.1), False)
sketch10.addGeometry(Part.Circle(Vector(-9.8, -4.5, 0), Vector(0, 0, 1), 1.1), False)
sketch10.addGeometry(Part.Circle(Vector(-9.8, -4.5, 0), Vector(0, 0, 1), 0.5), False)
sketch10.addGeometry(Part.Circle(Vector(9.8, -4.5, 0), Vector(0, 0, 1), 1.1), False)
sketch10.addGeometry(Part.Circle(Vector(9.8, 4.5, 0), Vector(0, 0, 1), 1.1), False)
sketch10.addGeometry(Part.Circle(Vector(9.8, 4.5, 0), Vector(0, 0, 1), 0.5), False)
sketch10.addConstraint(Sketcher.Constraint("Coincident", 2, 3, 1, 3))
sketch10.addConstraint(Sketcher.Constraint("Coincident", 5, 3, 4, 3))
sketch10.addConstraint(Sketcher.Constraint("Equal", 0, 1))
sketch10.addConstraint(Sketcher.Constraint("Equal", 1, 3))
sketch10.addConstraint(Sketcher.Constraint("Equal", 3, 4))
sketch10.addConstraint(Sketcher.Constraint("Equal", 2, 5))
sketch10.addConstraint(Sketcher.Constraint("Symmetric", 0, 3, 3, 3, -1, 1))
sketch10.addConstraint(Sketcher.Constraint("Symmetric", 1, 3, 4, 3, -1, 1))
sketch10.addConstraint(Sketcher.Constraint("Symmetric", 1, 3, 3, 3, -2))
sketch10.addConstraint(Sketcher.Constraint("Diameter", 2, Q("1 mm")))
sketch10.addConstraint(Sketcher.Constraint("Diameter", 0, Q("2.25 mm")))
sketch10.addConstraint(Sketcher.Constraint("DistanceY", 1, 3, 0, 3, Q("9 mm")))
sketch10.addConstraint(Sketcher.Constraint("DistanceX", 1, 3, 3, 3, Q("19.5 mm")))
pad8 = body.newObject("PartDesign::Pad", "Pad007")
pad8.Profile = sketch10
pad8.Length = 6

# Sketch on XZ plane
sketch11 = body.newObject("Sketcher::SketchObject", "Sketch010")
sketch11.AttachmentSupport = (doc.getObject("XZ_Plane"), [""])
sketch11.MapMode = "FlatFace"
sketch11.addGeometry(Part.Circle(Vector(-9.8, 4.5, 0), Vector(0, 0, 1), 0.5), False)
sketch11.addGeometry(Part.Circle(Vector(9.8, -4.5, 0), Vector(0, 0, 1), 0.5), False)
sketch11.addConstraint(Sketcher.Constraint("Equal", 0, 1))
sketch11.addConstraint(Sketcher.Constraint("Symmetric", 0, 3, 1, 3, -1, 1))
sketch11.addConstraint(Sketcher.Constraint("Diameter", 0, Q("1 mm")))
sketch11.addConstraint(Sketcher.Constraint("DistanceY", 1, 3, 0, 3, Q("9 mm")))
sketch11.addConstraint(Sketcher.Constraint("DistanceX", 0, 3, 1, 3, Q("19.5 mm")))
pad9 = body.newObject("PartDesign::Pad", "Pad008")
pad9.Profile = sketch11
pad9.Length = 2
doc.recompute()

fillet = body.newObject("PartDesign::Fillet", "Fillet")
fillet.Base = (pad9, edges_at(pad9, [(-10.25, -2, 4.5), (9.25, -2, -4.5)]))
fillet.Radius = 0.5
doc.recompute()

fillet2 = body.newObject("PartDesign::Fillet", "Fillet001")
fillet2.Base = (fillet, edges_at(fillet, [
    (-16, 1.125, 6),
    (-16, 1.125, -6),
    (16, 1.125, -6),
    (16, 1.125, 6),
    (-0.204, 8.75, -2.5),
    (-0.204, 8.75, 2.5),
    (-11.25, 4.375, -6),
    (11.25, 4.375, -6),
    (11.25, 4.375, 6),
    (-11.25, 4.375, 6),
]))
fillet2.Radius = 0.25

# Sketch on XZ plane
sketch12 = body.newObject("Sketcher::SketchObject", "Sketch011")
sketch12.AttachmentSupport = (doc.getObject("XZ_Plane"), [""])
sketch12.MapMode = "FlatFace"
sketch12.addGeometry(Part.LineSegment(Vector(0.1, 2.1, 0), Vector(0.1, -2.1, 0)), False)
sketch12.addGeometry(Part.ArcOfCircle(Part.Circle(Vector(5.2, 0, 0), Vector(0, 0, 1), 5.6), math.radians(-158), math.radians(158)), False)
sketch12.addConstraint(Sketcher.Constraint("Coincident", 0, 1, 1, 2))
sketch12.addConstraint(Sketcher.Constraint("Coincident", 1, 1, 0, 2))
sketch12.addConstraint(Sketcher.Constraint("Vertical", 0))
sketch12.addConstraint(Sketcher.Constraint("PointOnObject", 1, 3, -1))
sketch12.addConstraint(Sketcher.Constraint("Radius", 1, Q("5.6 mm")))
sketch12.addConstraint(Sketcher.Constraint("DistanceY", 0, 2, 0, 1, Q("4.2 mm")))
sketch12.addConstraint(Sketcher.Constraint("DistanceX", -1, 1, 1, 3, Q("5.25 mm")))
pocket3 = body.newObject("PartDesign::Pocket", "Pocket002")
pocket3.Profile = sketch12
pocket3.Length = 6

doc.recompute()
